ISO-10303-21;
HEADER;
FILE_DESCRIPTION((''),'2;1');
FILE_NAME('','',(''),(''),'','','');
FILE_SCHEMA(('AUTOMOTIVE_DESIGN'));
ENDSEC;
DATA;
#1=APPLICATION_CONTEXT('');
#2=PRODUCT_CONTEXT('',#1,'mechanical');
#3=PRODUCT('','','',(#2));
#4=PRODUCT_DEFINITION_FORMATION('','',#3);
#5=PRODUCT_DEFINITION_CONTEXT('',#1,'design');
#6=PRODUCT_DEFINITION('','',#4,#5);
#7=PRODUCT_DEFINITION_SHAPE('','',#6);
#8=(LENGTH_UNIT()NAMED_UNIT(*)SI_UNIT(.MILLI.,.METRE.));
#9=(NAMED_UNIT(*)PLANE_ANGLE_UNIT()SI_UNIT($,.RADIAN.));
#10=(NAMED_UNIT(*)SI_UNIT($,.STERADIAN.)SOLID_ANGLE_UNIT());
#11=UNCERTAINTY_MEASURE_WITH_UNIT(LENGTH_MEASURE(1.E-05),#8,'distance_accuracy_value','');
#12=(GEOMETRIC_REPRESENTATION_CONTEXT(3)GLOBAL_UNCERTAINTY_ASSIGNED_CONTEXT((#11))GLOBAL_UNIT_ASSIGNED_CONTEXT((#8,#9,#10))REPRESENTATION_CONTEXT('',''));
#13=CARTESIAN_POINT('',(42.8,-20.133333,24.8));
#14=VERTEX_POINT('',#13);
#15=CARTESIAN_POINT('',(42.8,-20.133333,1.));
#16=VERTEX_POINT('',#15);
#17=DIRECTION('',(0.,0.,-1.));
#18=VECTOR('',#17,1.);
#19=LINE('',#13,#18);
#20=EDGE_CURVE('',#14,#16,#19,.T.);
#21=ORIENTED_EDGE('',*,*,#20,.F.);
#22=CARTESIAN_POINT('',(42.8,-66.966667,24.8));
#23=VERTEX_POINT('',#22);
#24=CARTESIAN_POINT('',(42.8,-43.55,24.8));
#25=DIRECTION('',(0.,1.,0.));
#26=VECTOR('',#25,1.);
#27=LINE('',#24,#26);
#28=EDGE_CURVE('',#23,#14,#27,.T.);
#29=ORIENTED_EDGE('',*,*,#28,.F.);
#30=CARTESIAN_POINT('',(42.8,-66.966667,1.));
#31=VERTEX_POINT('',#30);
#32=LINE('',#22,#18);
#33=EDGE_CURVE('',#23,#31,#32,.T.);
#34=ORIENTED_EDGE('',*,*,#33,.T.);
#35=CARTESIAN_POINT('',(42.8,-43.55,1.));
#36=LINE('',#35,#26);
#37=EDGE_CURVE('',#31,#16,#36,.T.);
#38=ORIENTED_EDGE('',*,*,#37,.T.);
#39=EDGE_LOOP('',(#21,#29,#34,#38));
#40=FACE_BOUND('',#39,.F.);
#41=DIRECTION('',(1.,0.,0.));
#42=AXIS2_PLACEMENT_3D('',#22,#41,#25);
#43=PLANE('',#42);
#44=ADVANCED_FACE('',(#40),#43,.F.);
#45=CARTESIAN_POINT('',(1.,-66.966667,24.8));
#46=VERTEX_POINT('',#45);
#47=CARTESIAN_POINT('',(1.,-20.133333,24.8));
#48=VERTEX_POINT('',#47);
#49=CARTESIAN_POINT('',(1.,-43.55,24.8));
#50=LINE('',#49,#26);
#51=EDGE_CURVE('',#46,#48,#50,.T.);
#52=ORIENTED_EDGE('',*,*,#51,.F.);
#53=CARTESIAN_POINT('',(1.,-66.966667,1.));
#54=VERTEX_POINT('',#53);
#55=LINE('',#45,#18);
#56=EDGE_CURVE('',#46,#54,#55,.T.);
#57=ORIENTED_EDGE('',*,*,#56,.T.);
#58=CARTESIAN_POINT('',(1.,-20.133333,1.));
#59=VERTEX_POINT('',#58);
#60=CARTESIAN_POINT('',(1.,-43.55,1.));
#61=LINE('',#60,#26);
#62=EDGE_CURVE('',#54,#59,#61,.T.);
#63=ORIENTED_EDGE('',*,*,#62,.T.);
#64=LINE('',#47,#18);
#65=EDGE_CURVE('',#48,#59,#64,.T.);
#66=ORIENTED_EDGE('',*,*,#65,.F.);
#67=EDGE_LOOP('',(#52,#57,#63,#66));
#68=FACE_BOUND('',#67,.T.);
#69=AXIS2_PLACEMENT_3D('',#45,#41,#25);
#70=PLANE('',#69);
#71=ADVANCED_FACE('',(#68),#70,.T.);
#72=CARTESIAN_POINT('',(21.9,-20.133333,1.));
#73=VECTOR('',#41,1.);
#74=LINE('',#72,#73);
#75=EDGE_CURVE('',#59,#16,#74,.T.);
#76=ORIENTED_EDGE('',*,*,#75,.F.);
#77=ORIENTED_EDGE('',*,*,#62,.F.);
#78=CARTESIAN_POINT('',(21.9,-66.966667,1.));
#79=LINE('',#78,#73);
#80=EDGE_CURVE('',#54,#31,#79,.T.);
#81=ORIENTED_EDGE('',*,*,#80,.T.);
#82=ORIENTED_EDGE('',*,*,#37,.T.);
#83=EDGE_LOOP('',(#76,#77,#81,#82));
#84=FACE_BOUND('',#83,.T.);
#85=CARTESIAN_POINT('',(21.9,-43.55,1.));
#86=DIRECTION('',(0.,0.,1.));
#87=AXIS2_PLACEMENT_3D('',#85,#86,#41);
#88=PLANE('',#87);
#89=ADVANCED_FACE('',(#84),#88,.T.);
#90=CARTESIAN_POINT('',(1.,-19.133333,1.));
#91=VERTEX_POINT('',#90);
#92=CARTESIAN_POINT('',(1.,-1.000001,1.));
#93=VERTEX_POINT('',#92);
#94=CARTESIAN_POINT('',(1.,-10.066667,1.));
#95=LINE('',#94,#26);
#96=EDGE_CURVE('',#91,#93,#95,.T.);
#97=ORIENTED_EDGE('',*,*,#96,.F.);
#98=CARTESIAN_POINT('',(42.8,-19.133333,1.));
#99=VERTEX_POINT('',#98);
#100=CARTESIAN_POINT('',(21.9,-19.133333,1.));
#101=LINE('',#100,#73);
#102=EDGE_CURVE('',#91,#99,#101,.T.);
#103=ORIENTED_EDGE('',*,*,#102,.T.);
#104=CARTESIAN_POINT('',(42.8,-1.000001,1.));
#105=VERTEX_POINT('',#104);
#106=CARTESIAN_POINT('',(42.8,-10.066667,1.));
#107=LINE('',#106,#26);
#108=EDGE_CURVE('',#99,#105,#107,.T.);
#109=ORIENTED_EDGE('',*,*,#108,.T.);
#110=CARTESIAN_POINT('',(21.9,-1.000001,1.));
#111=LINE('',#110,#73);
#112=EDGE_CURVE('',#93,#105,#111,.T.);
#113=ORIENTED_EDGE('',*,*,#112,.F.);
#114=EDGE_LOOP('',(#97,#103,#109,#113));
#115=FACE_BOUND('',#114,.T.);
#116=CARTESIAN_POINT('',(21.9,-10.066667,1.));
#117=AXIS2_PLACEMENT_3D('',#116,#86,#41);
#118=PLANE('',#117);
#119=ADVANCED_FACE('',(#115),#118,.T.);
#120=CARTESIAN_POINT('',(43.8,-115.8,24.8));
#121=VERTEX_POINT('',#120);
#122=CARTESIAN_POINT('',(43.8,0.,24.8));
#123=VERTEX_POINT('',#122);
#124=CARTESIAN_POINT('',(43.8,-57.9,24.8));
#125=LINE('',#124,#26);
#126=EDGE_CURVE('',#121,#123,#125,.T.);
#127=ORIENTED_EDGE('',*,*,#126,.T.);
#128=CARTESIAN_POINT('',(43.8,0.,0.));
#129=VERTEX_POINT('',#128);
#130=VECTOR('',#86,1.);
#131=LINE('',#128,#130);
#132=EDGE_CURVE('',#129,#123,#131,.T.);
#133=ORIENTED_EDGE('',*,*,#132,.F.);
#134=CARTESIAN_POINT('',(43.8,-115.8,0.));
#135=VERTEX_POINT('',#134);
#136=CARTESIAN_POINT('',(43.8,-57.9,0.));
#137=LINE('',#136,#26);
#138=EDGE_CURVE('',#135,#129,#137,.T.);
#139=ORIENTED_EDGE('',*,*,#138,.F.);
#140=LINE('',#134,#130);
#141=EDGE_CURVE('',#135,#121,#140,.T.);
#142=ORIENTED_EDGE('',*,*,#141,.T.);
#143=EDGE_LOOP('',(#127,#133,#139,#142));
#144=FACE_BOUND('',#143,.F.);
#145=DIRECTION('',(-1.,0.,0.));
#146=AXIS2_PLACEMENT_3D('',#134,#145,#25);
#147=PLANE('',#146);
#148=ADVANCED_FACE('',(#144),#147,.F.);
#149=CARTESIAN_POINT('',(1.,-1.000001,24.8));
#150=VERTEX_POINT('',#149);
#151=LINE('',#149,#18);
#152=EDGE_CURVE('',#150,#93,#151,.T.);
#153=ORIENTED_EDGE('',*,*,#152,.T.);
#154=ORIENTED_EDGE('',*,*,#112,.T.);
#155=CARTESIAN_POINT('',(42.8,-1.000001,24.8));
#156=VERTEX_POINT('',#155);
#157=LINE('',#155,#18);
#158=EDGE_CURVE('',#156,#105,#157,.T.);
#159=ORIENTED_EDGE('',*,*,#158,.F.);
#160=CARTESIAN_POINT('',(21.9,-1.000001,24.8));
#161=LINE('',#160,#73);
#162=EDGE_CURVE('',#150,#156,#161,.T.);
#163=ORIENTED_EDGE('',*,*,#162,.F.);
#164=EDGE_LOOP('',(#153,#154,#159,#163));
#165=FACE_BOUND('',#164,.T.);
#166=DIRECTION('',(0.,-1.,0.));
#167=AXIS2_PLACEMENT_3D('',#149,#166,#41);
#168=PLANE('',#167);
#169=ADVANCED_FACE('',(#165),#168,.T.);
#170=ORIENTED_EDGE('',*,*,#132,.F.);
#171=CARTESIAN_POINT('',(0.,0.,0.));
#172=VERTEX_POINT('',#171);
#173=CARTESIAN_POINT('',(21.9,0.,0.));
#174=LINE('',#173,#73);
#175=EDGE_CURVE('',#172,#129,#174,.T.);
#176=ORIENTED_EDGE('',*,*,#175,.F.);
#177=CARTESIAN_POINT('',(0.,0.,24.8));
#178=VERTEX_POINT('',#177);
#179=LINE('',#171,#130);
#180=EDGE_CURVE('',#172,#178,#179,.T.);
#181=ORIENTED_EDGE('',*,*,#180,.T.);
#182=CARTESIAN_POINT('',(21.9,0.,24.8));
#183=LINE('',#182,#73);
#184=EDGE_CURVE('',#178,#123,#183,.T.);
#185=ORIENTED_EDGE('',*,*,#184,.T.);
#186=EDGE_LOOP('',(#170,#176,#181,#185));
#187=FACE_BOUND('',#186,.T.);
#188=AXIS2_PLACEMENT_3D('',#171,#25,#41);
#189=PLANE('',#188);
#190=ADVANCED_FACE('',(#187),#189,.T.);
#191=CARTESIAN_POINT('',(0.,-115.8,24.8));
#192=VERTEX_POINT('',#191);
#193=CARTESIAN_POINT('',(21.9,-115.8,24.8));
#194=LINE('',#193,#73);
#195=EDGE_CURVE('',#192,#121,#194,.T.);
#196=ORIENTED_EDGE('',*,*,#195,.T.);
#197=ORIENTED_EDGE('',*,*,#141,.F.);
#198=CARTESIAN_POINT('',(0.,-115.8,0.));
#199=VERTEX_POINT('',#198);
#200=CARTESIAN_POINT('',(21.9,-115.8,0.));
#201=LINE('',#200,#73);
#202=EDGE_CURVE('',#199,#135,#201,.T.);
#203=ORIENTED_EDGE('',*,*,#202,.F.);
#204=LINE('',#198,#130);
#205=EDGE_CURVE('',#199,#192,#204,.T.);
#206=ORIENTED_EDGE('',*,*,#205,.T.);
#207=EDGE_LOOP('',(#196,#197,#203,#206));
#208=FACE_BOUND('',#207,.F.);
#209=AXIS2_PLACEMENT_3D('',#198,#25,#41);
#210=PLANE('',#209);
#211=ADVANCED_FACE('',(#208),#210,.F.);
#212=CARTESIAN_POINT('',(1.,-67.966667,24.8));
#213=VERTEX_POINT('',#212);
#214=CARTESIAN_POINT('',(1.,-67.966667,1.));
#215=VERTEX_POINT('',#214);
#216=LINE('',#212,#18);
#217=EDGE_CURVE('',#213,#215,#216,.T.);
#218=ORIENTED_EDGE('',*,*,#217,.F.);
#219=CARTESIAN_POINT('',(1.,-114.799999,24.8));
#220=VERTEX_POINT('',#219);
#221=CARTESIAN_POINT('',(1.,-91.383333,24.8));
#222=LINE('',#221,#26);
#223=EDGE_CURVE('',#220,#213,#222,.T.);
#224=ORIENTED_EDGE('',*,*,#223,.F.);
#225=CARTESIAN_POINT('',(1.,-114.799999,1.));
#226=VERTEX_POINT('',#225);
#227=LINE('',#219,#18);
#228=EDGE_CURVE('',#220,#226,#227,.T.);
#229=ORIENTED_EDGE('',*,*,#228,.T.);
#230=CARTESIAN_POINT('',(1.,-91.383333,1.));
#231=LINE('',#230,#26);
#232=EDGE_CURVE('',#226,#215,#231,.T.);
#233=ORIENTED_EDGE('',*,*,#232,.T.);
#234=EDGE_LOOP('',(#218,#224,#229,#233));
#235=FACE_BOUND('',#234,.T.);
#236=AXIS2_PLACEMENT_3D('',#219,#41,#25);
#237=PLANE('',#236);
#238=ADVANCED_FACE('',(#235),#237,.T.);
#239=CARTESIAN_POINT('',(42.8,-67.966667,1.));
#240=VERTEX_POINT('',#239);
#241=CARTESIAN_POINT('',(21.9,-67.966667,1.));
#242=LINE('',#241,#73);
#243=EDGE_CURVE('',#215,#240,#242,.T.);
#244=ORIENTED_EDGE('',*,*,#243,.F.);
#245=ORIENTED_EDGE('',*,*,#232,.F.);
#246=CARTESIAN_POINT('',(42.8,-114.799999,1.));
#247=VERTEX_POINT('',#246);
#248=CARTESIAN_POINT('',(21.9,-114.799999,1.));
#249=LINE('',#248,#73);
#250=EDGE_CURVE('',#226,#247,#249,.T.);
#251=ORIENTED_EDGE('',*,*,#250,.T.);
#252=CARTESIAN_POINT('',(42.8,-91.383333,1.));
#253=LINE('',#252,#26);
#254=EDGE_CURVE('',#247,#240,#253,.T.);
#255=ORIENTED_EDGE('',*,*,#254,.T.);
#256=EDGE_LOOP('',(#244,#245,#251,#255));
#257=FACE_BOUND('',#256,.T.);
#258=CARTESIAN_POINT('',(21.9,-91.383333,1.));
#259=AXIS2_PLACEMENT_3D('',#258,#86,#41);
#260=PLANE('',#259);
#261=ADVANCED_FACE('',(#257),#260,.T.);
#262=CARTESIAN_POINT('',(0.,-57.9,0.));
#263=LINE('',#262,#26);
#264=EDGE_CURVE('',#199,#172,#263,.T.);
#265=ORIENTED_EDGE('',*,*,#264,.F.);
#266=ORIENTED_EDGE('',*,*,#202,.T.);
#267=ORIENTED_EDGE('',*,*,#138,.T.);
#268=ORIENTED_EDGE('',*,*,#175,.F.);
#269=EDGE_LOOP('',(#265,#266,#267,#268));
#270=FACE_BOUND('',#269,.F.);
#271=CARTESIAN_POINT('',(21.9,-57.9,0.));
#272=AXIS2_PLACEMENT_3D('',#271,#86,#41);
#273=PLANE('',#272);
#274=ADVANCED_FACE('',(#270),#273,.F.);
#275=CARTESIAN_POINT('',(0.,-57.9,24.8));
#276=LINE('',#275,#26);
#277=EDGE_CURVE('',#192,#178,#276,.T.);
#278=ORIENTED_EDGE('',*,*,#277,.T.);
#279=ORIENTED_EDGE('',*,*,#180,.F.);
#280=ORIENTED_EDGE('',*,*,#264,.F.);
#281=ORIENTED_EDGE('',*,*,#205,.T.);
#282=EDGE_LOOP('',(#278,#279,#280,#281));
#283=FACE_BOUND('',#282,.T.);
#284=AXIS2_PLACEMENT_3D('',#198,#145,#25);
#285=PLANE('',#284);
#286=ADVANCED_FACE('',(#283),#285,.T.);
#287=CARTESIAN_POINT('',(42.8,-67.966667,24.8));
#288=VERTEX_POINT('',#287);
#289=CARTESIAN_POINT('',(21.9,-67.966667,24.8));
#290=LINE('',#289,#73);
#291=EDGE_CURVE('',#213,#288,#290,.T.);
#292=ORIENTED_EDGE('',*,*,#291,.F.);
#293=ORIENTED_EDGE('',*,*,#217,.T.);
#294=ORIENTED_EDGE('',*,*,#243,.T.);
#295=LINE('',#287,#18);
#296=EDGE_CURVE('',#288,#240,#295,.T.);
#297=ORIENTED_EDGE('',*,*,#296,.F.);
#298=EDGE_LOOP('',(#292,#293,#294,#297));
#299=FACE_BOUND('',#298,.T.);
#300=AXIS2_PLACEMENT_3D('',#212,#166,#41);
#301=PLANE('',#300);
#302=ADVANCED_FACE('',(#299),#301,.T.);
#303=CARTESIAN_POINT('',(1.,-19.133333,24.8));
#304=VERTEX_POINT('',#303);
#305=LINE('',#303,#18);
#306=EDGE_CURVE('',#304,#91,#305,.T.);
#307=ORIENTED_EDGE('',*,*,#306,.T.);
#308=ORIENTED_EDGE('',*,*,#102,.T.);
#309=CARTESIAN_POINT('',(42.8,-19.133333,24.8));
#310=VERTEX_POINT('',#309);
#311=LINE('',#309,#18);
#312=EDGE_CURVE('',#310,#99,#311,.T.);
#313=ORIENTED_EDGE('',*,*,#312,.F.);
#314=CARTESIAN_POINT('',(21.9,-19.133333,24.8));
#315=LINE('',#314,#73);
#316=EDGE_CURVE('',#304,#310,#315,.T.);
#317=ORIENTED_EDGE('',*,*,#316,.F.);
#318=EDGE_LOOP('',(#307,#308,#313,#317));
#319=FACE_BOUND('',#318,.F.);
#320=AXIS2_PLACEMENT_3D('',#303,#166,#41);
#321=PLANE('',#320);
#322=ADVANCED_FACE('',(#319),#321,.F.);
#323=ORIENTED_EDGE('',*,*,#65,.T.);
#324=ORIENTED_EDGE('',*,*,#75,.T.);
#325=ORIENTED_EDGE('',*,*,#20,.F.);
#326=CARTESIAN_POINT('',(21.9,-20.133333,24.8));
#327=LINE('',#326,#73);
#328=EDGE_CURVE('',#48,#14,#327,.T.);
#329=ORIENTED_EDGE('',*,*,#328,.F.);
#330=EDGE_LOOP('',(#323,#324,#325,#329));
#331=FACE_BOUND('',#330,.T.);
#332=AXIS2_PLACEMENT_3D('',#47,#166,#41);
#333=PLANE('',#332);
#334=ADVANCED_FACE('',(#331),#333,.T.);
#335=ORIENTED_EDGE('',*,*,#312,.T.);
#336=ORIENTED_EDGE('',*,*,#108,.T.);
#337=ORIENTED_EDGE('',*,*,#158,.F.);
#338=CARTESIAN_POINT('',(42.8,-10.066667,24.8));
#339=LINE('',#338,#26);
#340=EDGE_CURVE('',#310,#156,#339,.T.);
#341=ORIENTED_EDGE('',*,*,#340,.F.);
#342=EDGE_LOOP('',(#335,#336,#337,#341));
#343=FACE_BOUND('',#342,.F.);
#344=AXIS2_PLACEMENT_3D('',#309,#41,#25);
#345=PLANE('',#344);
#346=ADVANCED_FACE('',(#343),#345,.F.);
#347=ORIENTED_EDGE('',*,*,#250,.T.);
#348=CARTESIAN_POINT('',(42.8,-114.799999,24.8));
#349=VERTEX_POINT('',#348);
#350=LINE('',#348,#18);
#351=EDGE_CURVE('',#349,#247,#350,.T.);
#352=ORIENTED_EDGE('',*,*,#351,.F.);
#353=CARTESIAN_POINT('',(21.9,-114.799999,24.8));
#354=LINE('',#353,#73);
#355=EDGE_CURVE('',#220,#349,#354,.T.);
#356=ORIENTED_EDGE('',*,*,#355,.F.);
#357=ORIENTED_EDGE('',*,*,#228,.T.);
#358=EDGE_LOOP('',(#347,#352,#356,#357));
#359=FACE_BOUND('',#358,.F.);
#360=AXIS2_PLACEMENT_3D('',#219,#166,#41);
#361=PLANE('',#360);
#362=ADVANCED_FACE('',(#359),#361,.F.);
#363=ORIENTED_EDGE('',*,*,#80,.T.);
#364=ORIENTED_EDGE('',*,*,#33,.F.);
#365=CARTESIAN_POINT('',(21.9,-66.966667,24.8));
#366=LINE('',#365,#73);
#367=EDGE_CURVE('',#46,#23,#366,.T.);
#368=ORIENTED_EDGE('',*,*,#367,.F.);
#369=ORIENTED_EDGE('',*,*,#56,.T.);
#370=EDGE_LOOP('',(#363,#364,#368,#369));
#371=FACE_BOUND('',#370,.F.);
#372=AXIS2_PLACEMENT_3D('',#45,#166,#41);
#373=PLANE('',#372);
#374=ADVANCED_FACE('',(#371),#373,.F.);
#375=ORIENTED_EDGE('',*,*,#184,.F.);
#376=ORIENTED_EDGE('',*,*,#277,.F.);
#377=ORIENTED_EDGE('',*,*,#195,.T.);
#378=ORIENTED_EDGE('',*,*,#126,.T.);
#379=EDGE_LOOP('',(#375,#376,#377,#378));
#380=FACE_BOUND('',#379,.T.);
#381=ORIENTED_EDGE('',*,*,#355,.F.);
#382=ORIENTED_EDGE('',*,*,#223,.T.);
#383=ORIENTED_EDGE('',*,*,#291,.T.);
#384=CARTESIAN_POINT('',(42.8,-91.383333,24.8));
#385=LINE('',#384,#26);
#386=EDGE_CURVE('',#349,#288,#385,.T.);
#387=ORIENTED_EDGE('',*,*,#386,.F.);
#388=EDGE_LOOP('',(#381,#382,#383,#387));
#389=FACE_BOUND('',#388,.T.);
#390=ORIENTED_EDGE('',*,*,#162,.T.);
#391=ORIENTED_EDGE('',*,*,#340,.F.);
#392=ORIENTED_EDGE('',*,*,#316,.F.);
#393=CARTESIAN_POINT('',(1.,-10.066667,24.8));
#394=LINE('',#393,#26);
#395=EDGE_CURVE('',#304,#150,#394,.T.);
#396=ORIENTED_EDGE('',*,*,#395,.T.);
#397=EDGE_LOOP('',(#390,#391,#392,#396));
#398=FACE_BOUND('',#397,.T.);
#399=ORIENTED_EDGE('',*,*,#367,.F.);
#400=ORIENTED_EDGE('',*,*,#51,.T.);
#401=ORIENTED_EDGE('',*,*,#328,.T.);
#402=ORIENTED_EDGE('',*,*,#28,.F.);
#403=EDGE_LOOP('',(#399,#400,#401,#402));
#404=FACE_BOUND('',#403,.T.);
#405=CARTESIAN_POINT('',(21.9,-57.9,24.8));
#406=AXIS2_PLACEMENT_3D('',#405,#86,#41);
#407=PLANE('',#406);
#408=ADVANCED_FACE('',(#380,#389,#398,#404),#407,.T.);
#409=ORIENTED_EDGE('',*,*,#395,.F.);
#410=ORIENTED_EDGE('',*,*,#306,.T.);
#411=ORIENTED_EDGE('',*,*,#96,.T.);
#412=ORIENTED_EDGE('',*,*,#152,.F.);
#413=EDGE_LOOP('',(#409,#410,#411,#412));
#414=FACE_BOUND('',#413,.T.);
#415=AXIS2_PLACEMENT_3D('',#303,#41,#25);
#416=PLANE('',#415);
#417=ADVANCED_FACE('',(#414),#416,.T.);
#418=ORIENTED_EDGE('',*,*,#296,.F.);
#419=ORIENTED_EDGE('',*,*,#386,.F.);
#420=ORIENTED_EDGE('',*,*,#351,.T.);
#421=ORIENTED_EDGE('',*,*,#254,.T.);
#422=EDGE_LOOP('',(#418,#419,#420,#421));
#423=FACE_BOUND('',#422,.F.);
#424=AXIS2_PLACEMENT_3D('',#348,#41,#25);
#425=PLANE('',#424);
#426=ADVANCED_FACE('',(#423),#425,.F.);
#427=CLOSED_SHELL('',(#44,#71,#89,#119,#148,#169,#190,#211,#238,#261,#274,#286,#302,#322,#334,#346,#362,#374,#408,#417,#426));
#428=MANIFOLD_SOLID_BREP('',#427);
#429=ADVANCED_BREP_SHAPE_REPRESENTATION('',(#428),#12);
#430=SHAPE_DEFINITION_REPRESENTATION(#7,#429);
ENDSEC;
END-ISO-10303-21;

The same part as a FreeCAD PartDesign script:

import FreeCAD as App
import Part
import Sketcher


def add_polygon(sketch, points):
    """Adds a closed chain of lines whose ends are joined by coincident constraints."""
    first, n = sketch.GeometryCount, len(points)
    for a, b in zip(points, points[1:] + points[:1]):
        sketch.addGeometry(Part.LineSegment(App.Vector(*a, 0), App.Vector(*b, 0)), False)
    for i in range(n):
        sketch.addConstraint(Sketcher.Constraint("Coincident", first + i, 2, first + (i + 1) % n, 1))

doc = App.newDocument("Part")
body = doc.addObject("PartDesign::Body", "Body")

sketch1 = doc.addObject("Sketcher::SketchObject", "Sketch")
body.addObject(sketch1)
sketch1.AttachmentSupport = (doc.XY_Plane, [""])
sketch1.MapMode = "FlatFace"
add_polygon(sketch1, [(0, 0), (0, -115.8), (43.8, -115.8), (43.8, 0)])
sketch1.addConstraint(Sketcher.Constraint("Vertical", 0))
sketch1.addConstraint(Sketcher.Constraint("Horizontal", 1))
sketch1.addConstraint(Sketcher.Constraint("Vertical", 2))
sketch1.addConstraint(Sketcher.Constraint("Horizontal", 3))
sketch1.addConstraint(Sketcher.Constraint("Coincident", 3, 2, -1, 1))
sketch1.addConstraint(Sketcher.Constraint("DistanceX", 1, 1, 1, 2, 43.8))
sketch1.addConstraint(Sketcher.Constraint("DistanceY", 0, 2, 0, 1, 115.8))
pad1 = doc.addObject("PartDesign::Pad", "Pad")
body.addObject(pad1)
pad1.Profile = sketch1
pad1.Length = 24.8

sketch2 = doc.addObject("Sketcher::SketchObject", "Sketch001")
body.addObject(sketch2)
sketch2.AttachmentSupport = (doc.XY_Plane, [""])
sketch2.MapMode = "FlatFace"
sketch2.AttachmentOffset = App.Placement(App.Vector(0, 0, 24.8), App.Rotation())
add_polygon(sketch2, [(1, -1.000001), (1, -19.133333), (42.8, -19.133333), (42.8, -1.000001)])
add_polygon(sketch2, [(1, -20.133333), (1, -66.966667), (42.8, -66.966667), (42.8, -20.133333)])
add_polygon(sketch2, [(1, -67.966667), (1, -114.799999), (42.8, -114.799999), (42.8, -67.966667)])
sketch2.addConstraint(Sketcher.Constraint("Vertical", 0))
sketch2.addConstraint(Sketcher.Constraint("Horizontal", 1))
sketch2.addConstraint(Sketcher.Constraint("Vertical", 2))
sketch2.addConstraint(Sketcher.Constraint("Horizontal", 3))
sketch2.addConstraint(Sketcher.Constraint("Vertical", 4))
sketch2.addConstraint(Sketcher.Constraint("Horizontal", 5))
sketch2.addConstraint(Sketcher.Constraint("Vertical", 6))
sketch2.addConstraint(Sketcher.Constraint("Horizontal", 7))
sketch2.addConstraint(Sketcher.Constraint("Vertical", 8))
sketch2.addConstraint(Sketcher.Constraint("Horizontal", 9))
sketch2.addConstraint(Sketcher.Constraint("Vertical", 10))
sketch2.addConstraint(Sketcher.Constraint("Horizontal", 11))
sketch2.addConstraint(Sketcher.Constraint("Vertical", 3, 2, 4, 2))
sketch2.addConstraint(Sketcher.Constraint("Vertical", 2, 2, 5, 2))
sketch2.addConstraint(Sketcher.Constraint("Vertical", 7, 2, 8, 2))
sketch2.addConstraint(Sketcher.Constraint("Vertical", 6, 2, 9, 2))
sketch2.addConstraint(Sketcher.Constraint("Equal", 6, 8))
sketch2.addConstraint(Sketcher.Constraint("DistanceX", 1, 1, 1, 2, 41.8))
sketch2.addConstraint(Sketcher.Constraint("DistanceX", -1, 1, 0, 2, 1.0))
sketch2.addConstraint(Sketcher.Constraint("DistanceY", 2, 2, -1, 1, 1.000001))
sketch2.addConstraint(Sketcher.Constraint("DistanceY", 6, 2, 1, 2, 1.0))
sketch2.addConstraint(Sketcher.Constraint("DistanceY", 10, 2, 5, 2, 1.0))
sketch2.addConstraint(Sketcher.Constraint("DistanceY", 8, 2, -1, 1, 114.799999))
sketch2.addConstraint(Sketcher.Constraint("DistanceY", 0, 2, 0, 1, 18.133333))
pocket1 = doc.addObject("PartDesign::Pocket", "Pocket")
body.addObject(pocket1)
pocket1.Profile = sketch2
pocket1.Length = 23.8

doc.recompute()
